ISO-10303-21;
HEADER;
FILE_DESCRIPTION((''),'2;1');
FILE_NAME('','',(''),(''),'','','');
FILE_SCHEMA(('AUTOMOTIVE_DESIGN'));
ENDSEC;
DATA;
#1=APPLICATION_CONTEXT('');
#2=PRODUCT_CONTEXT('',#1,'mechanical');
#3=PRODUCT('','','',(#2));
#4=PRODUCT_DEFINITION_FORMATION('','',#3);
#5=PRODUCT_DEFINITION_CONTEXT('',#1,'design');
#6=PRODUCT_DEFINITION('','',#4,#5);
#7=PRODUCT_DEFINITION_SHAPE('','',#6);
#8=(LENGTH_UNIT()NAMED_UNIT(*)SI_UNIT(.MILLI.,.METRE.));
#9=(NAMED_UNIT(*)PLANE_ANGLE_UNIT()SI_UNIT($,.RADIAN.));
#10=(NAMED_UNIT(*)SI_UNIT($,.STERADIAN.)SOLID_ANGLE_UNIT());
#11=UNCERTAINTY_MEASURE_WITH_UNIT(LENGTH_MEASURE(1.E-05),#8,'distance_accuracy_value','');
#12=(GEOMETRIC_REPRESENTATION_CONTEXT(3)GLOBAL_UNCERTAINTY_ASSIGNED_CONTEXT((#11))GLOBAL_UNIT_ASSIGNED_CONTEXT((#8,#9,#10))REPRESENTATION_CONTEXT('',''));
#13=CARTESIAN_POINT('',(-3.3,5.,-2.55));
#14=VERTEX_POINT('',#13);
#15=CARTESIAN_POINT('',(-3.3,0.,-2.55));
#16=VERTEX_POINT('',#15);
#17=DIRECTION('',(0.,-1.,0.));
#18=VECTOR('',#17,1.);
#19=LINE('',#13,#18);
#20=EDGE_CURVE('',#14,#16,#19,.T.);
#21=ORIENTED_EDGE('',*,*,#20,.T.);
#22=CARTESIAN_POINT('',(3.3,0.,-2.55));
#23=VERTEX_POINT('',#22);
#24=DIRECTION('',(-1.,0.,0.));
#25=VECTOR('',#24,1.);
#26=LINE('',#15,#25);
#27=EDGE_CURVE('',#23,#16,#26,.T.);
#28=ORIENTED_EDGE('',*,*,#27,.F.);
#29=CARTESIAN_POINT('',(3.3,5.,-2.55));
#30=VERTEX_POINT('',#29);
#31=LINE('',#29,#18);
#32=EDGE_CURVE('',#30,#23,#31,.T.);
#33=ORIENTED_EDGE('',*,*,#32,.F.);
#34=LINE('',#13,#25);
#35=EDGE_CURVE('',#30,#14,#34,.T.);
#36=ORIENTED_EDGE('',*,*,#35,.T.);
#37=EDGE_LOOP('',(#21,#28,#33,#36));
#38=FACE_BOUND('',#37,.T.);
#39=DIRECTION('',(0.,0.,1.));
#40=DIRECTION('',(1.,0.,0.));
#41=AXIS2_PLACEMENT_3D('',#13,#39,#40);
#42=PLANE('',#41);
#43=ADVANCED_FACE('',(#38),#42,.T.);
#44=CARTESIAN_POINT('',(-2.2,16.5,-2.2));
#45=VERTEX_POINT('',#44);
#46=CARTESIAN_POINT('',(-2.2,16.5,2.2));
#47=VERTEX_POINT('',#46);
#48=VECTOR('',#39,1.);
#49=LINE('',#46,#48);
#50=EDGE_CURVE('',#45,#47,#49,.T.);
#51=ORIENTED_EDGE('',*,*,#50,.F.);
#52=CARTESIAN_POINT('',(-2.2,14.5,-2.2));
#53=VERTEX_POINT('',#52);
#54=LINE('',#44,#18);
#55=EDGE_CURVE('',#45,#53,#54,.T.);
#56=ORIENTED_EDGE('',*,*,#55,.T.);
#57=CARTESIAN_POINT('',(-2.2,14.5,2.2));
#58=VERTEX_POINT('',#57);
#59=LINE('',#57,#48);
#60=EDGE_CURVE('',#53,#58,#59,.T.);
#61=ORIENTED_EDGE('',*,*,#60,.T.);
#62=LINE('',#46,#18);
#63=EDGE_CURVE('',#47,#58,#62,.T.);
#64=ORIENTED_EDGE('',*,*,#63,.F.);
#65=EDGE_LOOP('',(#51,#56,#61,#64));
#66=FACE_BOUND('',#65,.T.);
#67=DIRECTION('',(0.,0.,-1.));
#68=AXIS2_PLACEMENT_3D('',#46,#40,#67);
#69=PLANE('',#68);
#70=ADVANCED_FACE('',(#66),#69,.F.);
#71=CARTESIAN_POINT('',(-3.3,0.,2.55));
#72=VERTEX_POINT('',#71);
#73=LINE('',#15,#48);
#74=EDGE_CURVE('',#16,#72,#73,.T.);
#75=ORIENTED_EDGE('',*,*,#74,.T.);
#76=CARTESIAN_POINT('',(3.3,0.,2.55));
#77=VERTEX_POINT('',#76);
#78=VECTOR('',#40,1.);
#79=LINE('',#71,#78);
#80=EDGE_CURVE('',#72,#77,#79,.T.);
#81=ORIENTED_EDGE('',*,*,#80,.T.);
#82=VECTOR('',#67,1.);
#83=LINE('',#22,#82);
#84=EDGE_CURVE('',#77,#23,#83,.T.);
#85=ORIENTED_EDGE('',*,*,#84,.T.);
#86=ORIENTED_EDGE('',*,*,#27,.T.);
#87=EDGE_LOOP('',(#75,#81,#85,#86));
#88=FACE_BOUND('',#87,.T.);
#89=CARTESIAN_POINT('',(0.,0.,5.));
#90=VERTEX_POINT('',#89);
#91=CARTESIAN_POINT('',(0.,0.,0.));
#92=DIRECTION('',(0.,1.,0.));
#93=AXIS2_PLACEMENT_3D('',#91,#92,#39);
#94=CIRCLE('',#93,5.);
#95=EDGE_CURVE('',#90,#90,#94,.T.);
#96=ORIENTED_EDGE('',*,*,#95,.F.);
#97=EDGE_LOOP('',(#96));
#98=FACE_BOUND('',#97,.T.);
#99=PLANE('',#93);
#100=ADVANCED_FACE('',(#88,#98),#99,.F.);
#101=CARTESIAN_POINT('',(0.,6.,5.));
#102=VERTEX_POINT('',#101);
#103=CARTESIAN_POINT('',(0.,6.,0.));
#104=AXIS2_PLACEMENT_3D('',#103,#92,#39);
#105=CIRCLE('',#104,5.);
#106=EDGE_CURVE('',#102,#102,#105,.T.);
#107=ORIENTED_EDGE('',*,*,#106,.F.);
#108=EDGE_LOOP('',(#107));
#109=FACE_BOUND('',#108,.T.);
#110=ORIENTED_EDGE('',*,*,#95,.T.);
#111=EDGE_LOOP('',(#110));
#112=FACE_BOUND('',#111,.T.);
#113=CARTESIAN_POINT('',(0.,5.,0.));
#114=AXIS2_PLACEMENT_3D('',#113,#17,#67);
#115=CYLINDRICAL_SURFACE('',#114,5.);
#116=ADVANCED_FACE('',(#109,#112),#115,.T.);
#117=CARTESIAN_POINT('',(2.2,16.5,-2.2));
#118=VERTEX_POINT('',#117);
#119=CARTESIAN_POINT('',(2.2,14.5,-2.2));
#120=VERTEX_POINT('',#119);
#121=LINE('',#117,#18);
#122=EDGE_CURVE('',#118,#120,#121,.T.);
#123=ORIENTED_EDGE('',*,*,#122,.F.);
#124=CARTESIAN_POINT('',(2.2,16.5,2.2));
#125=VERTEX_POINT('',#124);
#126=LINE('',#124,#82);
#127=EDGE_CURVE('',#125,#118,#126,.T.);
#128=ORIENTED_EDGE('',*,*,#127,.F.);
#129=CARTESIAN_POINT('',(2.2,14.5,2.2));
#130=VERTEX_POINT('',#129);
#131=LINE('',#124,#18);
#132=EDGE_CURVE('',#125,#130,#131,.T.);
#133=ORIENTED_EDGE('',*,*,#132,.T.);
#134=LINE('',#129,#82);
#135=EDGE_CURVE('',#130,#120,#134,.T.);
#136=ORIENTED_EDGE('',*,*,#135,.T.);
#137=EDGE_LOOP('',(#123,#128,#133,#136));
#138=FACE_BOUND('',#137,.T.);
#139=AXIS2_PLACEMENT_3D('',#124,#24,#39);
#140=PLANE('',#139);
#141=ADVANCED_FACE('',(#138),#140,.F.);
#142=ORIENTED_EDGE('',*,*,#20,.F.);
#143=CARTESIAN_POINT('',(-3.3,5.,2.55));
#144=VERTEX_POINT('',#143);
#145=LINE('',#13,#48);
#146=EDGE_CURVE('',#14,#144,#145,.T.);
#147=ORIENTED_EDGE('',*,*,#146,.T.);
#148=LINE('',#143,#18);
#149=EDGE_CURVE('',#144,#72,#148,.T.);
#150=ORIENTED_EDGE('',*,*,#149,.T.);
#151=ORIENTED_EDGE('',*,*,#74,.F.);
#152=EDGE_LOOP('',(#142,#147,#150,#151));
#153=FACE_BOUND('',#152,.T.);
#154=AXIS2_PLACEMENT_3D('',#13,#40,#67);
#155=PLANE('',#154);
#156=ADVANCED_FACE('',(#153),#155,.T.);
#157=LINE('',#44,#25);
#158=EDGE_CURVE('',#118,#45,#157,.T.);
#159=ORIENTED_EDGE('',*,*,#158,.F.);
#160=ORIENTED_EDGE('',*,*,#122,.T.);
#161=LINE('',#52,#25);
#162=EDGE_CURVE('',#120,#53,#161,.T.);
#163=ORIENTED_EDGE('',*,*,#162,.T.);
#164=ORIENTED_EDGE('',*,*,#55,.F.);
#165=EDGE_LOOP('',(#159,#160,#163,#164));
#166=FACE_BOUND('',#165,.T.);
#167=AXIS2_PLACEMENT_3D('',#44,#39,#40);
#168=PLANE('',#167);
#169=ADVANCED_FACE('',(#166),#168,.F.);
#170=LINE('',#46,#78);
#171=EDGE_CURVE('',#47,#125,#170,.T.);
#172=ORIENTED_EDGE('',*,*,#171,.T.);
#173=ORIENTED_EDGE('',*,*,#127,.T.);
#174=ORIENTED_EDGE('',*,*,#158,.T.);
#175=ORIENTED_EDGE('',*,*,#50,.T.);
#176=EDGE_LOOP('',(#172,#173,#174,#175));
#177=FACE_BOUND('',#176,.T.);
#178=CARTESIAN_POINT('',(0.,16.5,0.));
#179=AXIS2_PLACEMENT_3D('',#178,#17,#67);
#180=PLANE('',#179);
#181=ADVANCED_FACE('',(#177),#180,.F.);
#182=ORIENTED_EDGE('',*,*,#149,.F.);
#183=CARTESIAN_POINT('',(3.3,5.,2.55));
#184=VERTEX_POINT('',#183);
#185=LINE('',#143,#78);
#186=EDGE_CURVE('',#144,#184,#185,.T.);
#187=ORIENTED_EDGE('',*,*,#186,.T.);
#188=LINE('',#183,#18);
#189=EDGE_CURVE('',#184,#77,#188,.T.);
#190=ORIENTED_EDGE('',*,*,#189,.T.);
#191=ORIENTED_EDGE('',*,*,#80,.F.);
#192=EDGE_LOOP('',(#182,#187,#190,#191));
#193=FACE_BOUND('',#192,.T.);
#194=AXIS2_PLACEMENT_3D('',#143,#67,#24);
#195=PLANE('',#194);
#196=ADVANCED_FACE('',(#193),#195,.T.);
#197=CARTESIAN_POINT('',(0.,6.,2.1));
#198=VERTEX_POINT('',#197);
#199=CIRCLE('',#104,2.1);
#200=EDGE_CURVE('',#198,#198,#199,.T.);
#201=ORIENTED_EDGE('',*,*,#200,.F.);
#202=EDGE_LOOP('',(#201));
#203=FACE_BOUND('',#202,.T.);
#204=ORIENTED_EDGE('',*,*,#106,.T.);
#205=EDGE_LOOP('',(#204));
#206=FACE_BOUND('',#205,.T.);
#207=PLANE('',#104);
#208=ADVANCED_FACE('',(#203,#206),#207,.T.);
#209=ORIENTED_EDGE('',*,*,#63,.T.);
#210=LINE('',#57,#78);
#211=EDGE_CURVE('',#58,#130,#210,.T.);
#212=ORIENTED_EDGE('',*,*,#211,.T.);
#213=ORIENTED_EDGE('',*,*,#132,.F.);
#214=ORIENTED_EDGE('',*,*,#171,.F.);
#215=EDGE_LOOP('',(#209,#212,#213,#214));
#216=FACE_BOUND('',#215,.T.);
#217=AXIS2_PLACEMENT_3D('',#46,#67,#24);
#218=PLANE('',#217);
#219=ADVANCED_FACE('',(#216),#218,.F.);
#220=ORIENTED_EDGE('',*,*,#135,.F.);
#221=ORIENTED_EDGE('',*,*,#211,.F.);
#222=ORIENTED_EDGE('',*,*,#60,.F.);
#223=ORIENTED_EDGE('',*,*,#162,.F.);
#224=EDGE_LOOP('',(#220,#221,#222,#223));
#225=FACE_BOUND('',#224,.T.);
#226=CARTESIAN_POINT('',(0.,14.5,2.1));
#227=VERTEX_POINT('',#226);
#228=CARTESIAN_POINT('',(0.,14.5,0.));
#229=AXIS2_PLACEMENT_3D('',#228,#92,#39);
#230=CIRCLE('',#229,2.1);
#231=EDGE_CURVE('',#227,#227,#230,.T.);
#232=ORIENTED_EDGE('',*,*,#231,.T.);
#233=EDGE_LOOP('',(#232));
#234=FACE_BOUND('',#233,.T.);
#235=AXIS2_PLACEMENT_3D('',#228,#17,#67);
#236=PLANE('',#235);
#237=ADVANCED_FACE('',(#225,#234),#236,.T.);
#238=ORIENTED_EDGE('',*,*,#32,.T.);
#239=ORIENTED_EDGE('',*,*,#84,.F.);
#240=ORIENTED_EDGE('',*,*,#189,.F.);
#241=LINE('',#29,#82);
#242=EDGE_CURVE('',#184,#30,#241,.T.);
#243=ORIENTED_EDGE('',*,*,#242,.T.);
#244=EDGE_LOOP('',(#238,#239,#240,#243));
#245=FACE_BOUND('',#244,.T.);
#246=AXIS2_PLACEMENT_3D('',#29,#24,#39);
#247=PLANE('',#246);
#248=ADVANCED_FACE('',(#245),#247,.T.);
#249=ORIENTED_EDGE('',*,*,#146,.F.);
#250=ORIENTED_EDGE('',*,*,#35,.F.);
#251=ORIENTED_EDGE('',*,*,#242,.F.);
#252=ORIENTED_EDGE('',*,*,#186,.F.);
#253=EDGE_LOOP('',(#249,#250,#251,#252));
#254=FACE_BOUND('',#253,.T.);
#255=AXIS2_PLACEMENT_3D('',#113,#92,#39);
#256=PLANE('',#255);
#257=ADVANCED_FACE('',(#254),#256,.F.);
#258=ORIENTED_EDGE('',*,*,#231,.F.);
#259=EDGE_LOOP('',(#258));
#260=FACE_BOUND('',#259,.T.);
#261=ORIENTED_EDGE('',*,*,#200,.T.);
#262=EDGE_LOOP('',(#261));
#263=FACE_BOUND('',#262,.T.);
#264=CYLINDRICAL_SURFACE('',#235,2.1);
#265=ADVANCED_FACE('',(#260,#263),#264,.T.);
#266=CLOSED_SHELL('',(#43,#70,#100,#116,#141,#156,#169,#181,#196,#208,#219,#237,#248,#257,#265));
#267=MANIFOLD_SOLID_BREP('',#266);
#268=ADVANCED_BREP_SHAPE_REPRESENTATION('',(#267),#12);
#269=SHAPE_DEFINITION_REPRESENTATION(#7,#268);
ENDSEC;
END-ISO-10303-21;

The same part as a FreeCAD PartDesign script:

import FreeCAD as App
import Part
import Sketcher
from FreeCAD import Vector
Q = App.Units.Quantity


def add_polygon(sketch, points):
    """Adds a closed chain of lines whose ends are joined by coincident constraints."""
    first, n = sketch.GeometryCount, len(points)
    for a, b in zip(points, points[1:] + points[:1]):
        sketch.addGeometry(Part.LineSegment(App.Vector(*a, 0), App.Vector(*b, 0)), False)
    for i in range(n):
        sketch.addConstraint(Sketcher.Constraint("Coincident", first + i, 2, first + (i + 1) % n, 1))

doc = App.newDocument("Part")
body = doc.addObject("PartDesign::Body", "Body")

# Sketch on XZ plane
sketch1 = body.newObject("Sketcher::SketchObject", "Sketch")
sketch1.AttachmentSupport = (doc.getObject("XZ_Plane"), [""])
sketch1.MapMode = "FlatFace"
sketch1.addGeometry(Part.Circle(Vector(0, 0, 0), Vector(0, 0, 1), 5), False)  # 0
add_polygon(sketch1, [(3, 3), (-3, 3), (-3, -3), (3, -3)])  # lines 1-4
sketch1.addConstraint(Sketcher.Constraint("Horizontal", 1))
sketch1.addConstraint(Sketcher.Constraint("Vertical", 2))
sketch1.addConstraint(Sketcher.Constraint("Horizontal", 3))
sketch1.addConstraint(Sketcher.Constraint("Vertical", 4))
sketch1.addConstraint(Sketcher.Constraint("Coincident", 0, 3, -1, 1))
sketch1.addConstraint(Sketcher.Constraint("Symmetric", 1, 2, 3, 2, -1, 1))
sketch1.addConstraint(Sketcher.Constraint("Diameter", 0, Q("10 mm")))
sketch1.addConstraint(Sketcher.Constraint("DistanceX", 1, 2, 1, 1, Q("6.6 mm")))
sketch1.addConstraint(Sketcher.Constraint("DistanceY", 2, 2, 2, 1, Q("5.1 mm")))
pad1 = body.newObject("PartDesign::Pad", "Pad")
pad1.Profile = sketch1
pad1.Length = 5
pad1.Reversed = True

# Sketch on XZ plane
sketch2 = body.newObject("Sketcher::SketchObject", "Sketch001")
sketch2.AttachmentSupport = (doc.getObject("XZ_Plane"), [""])
sketch2.MapMode = "FlatFace"
sketch2.AttachmentOffset = App.Placement(Vector(0, 0, -5), App.Rotation())
sketch2.addGeometry(Part.Circle(Vector(0, 0, 0), Vector(0, 0, 1), 5), False)
sketch2.addConstraint(Sketcher.Constraint("Coincident", 0, 3, -1, 1))
sketch2.addConstraint(Sketcher.Constraint("Diameter", 0, Q("10 mm")))
pad2 = body.newObject("PartDesign::Pad", "Pad001")
pad2.Profile = sketch2
pad2.Length = 1
pad2.Reversed = True

# Sketch on XZ plane
sketch3 = body.newObject("Sketcher::SketchObject", "Sketch002")
sketch3.AttachmentSupport = (doc.getObject("XZ_Plane"), [""])
sketch3.MapMode = "FlatFace"
sketch3.AttachmentOffset = App.Placement(Vector(0, 0, -6), App.Rotation())
sketch3.addGeometry(Part.Circle(Vector(0, 0, 0), Vector(0, 0, 1), 2.1), False)
sketch3.addConstraint(Sketcher.Constraint("Coincident", 0, 3, -1, 1))
sketch3.addConstraint(Sketcher.Constraint("Diameter", 0, Q("4.2 mm")))
pad3 = body.newObject("PartDesign::Pad", "Pad002")
pad3.Profile = sketch3
pad3.Length = 8.5
pad3.Reversed = True

# Sketch on XZ plane
sketch4 = body.newObject("Sketcher::SketchObject", "Sketch003")
sketch4.AttachmentSupport = (doc.getObject("XZ_Plane"), [""])
sketch4.MapMode = "FlatFace"
sketch4.AttachmentOffset = App.Placement(Vector(0, 0, -14.5), App.Rotation())
add_polygon(sketch4, [(-2.2, -2.2), (-2.2, 2.2), (2.2, 2.2), (2.2, -2.2)])  # lines 0-3
sketch4.addConstraint(Sketcher.Constraint("Vertical", 0))
sketch4.addConstraint(Sketcher.Constraint("Horizontal", 1))
sketch4.addConstraint(Sketcher.Constraint("Vertical", 2))
sketch4.addConstraint(Sketcher.Constraint("Horizontal", 3))
sketch4.addConstraint(Sketcher.Constraint("Symmetric", 0, 2, 2, 2, -1, 1))
sketch4.addConstraint(Sketcher.Constraint("Equal", 3, 0))
sketch4.addConstraint(Sketcher.Constraint("DistanceX", 1, 1, 1, 2, Q("4.4 mm")))
pad4 = body.newObject("PartDesign::Pad", "Pad003")
pad4.Profile = sketch4
pad4.Length = 2
pad4.Reversed = True

doc.recompute()
